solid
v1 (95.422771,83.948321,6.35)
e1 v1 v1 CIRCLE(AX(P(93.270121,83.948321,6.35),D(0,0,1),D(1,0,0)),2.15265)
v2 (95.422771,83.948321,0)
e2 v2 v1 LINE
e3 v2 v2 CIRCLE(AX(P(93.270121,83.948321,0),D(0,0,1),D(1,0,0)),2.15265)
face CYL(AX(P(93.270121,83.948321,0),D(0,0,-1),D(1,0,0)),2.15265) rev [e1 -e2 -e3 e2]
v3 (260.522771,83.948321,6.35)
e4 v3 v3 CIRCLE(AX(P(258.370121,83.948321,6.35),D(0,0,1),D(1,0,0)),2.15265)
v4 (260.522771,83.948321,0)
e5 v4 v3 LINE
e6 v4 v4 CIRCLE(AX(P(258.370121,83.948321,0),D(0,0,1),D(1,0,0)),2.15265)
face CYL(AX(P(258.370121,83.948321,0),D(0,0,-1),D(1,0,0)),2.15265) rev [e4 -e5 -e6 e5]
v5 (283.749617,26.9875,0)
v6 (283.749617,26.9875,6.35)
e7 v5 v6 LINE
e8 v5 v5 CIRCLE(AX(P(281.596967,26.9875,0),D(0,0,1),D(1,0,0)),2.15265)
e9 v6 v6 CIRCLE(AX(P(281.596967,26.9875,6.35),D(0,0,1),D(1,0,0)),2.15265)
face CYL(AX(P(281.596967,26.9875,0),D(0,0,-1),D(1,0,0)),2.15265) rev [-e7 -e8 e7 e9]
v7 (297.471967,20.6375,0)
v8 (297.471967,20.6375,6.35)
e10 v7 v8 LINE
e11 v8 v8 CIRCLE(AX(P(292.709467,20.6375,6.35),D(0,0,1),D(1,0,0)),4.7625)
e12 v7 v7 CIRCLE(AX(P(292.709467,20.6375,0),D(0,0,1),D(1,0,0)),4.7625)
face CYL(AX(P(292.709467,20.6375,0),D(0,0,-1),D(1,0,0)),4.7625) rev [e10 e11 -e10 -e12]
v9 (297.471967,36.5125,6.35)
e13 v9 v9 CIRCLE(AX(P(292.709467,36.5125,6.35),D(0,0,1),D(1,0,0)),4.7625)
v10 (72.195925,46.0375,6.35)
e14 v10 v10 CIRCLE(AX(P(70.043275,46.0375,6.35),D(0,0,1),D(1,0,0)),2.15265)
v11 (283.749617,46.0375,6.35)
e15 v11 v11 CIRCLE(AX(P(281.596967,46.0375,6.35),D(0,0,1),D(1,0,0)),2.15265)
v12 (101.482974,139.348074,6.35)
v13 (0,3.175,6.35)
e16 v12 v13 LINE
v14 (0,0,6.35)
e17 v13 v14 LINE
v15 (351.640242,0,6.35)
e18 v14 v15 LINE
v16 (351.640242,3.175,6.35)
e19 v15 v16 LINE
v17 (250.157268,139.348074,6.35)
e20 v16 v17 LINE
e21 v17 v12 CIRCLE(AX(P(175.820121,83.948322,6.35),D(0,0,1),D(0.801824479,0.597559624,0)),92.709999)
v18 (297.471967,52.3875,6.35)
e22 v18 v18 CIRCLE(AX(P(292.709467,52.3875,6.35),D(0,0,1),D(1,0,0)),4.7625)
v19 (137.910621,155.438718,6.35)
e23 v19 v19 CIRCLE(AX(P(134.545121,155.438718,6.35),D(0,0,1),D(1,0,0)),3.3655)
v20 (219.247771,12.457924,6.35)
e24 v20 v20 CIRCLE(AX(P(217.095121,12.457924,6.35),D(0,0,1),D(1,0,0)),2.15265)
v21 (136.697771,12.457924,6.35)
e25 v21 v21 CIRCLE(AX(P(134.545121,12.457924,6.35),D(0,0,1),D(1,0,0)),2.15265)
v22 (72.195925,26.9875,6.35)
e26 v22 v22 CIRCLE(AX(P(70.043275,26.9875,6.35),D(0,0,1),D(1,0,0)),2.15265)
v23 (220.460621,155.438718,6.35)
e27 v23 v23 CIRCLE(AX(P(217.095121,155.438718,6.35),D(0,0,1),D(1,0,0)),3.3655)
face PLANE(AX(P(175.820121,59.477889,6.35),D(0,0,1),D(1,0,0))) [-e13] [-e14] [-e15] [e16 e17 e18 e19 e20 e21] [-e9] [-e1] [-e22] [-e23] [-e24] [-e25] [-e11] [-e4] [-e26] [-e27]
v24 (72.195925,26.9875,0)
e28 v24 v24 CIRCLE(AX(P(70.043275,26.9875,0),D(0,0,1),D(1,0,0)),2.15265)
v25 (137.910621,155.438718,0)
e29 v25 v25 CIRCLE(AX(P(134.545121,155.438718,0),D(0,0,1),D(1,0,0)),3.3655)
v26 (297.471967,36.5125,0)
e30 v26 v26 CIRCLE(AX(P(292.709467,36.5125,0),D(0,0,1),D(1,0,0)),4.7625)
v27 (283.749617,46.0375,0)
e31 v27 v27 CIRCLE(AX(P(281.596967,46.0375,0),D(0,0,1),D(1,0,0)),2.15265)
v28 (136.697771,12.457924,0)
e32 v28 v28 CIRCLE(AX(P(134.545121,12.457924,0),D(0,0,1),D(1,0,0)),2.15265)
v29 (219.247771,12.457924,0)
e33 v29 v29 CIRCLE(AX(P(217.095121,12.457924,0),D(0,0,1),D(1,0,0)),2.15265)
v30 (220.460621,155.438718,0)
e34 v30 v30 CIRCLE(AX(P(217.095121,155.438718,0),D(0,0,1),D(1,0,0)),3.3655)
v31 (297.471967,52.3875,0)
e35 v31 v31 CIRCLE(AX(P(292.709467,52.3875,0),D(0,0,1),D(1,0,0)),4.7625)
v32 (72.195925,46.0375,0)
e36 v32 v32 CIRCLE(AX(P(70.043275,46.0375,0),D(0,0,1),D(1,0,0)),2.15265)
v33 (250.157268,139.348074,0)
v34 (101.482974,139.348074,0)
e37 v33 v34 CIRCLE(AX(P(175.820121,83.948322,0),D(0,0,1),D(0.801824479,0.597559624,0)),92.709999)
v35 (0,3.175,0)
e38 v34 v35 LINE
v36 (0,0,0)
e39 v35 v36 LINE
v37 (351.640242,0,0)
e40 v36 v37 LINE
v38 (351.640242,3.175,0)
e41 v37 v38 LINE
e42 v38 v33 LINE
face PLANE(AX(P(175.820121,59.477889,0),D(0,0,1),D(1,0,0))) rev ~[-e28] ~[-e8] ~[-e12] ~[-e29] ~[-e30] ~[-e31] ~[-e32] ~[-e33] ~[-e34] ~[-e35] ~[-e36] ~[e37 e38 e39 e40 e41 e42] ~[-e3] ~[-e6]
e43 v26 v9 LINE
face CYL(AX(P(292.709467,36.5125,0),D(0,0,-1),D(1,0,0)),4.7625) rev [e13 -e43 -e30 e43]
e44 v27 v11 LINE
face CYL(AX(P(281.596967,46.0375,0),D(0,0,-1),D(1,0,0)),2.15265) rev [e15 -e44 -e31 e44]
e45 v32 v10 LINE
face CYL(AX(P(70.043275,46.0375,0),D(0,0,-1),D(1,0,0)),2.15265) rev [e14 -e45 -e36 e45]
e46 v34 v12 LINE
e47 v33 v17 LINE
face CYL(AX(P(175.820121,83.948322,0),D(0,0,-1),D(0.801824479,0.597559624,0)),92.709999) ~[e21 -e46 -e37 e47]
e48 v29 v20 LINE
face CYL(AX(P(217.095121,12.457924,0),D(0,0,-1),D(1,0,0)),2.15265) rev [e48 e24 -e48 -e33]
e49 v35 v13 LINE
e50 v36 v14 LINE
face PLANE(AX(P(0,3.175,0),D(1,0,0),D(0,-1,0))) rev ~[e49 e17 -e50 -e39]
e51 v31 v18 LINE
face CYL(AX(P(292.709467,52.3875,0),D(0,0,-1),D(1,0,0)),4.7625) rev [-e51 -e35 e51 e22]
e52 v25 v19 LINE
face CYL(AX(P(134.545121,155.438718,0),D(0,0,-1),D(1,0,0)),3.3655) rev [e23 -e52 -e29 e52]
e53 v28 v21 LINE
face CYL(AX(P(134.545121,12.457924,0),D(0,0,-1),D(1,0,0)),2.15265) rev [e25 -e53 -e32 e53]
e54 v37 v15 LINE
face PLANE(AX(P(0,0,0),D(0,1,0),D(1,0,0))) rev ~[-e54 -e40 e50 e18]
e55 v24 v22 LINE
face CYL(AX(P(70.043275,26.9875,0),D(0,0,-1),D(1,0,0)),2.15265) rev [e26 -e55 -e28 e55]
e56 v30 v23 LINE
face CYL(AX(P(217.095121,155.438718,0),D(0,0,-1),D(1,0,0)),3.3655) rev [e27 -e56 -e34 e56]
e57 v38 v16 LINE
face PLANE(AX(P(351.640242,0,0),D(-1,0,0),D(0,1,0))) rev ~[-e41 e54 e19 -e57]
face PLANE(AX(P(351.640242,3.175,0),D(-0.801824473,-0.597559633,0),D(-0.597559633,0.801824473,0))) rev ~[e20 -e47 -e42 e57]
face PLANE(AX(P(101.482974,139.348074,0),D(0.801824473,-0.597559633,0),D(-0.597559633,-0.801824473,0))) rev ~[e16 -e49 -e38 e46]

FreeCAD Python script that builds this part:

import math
import FreeCAD as App
import Part
import Sketcher
Q = App.Units.Quantity

doc = App.newDocument("Part")
body = doc.addObject("PartDesign::Body", "Body")

# Sketch on XY plane
sketch1 = body.newObject("Sketcher::SketchObject", "Sketch")
sketch1.AttachmentSupport = (doc.getObject("XY_Plane"), [""])
sketch1.MapMode = "FlatFace"
sketch1.addGeometry(Part.LineSegment(App.Vector(0, 3.2, 0), App.Vector(0, 0, 0)), False)
sketch1.addGeometry(Part.LineSegment(App.Vector(0, 0, 0), App.Vector(351.6, 0, 0)), False)
sketch1.addGeometry(Part.LineSegment(App.Vector(351.6, 0, 0), App.Vector(351.6, 3.2, 0)), False)
sketch1.addGeometry(Part.LineSegment(App.Vector(351.6, 3.2, 0), App.Vector(250.2, 139.3, 0)), False)
sketch1.addGeometry(Part.ArcOfCircle(Part.Circle(App.Vector(175.8, 83.9, 0), App.Vector(0, 0, 1), 92.7), math.radians(37), math.radians(143)), False)
sketch1.addGeometry(Part.LineSegment(App.Vector(101.5, 139.3, 0), App.Vector(0, 3.2, 0)), False)
sketch1.addGeometry(Part.Circle(App.Vector(70, 27, 0), App.Vector(0, 0, 1), 2.2), False)
sketch1.addGeometry(Part.Circle(App.Vector(70, 46, 0), App.Vector(0, 0, 1), 2.2), False)
sketch1.addGeometry(Part.Circle(App.Vector(134.5, 12.5, 0), App.Vector(0, 0, 1), 2.2), False)
sketch1.addGeometry(Part.Circle(App.Vector(93.3, 83.9, 0), App.Vector(0, 0, 1), 2.2), False)
sketch1.addGeometry(Part.Circle(App.Vector(217.1, 12.5, 0), App.Vector(0, 0, 1), 2.2), False)
sketch1.addGeometry(Part.Circle(App.Vector(281.6, 27, 0), App.Vector(0, 0, 1), 2.2), False)
sketch1.addGeometry(Part.Circle(App.Vector(292.7, 20.6, 0), App.Vector(0, 0, 1), 4.8), False)
sketch1.addGeometry(Part.Circle(App.Vector(292.7, 36.5, 0), App.Vector(0, 0, 1), 4.8), False)
sketch1.addGeometry(Part.Circle(App.Vector(281.6, 46, 0), App.Vector(0, 0, 1), 2.2), False)
sketch1.addGeometry(Part.Circle(App.Vector(292.7, 52.4, 0), App.Vector(0, 0, 1), 4.8), False)
sketch1.addGeometry(Part.Circle(App.Vector(258.4, 83.9, 0), App.Vector(0, 0, 1), 2.2), False)
sketch1.addGeometry(Part.Circle(App.Vector(134.5, 155.4, 0), App.Vector(0, 0, 1), 3.4), False)
sketch1.addGeometry(Part.Circle(App.Vector(217.1, 155.4, 0), App.Vector(0, 0, 1), 3.4), False)
sketch1.addConstraint(Sketcher.Constraint("Coincident", 0, 2, 1, 1))
sketch1.addConstraint(Sketcher.Constraint("Coincident", 1, 2, 2, 1))
sketch1.addConstraint(Sketcher.Constraint("Coincident", 2, 2, 3, 1))
sketch1.addConstraint(Sketcher.Constraint("Tangent", 3, 2, 4, 1))
sketch1.addConstraint(Sketcher.Constraint("Tangent", 4, 2, 5, 1))
sketch1.addConstraint(Sketcher.Constraint("Coincident", 5, 2, 0, 1))
sketch1.addConstraint(Sketcher.Constraint("Vertical", 0))
sketch1.addConstraint(Sketcher.Constraint("Horizontal", 1))
sketch1.addConstraint(Sketcher.Constraint("Vertical", 2))
sketch1.addConstraint(Sketcher.Constraint("Coincident", 0, 2, -1, 1))
sketch1.addConstraint(Sketcher.Constraint("Equal", 6, 7))
sketch1.addConstraint(Sketcher.Constraint("Equal", 7, 8))
sketch1.addConstraint(Sketcher.Constraint("Equal", 8, 9))
sketch1.addConstraint(Sketcher.Constraint("Equal", 9, 10))
sketch1.addConstraint(Sketcher.Constraint("Equal", 10, 11))
sketch1.addConstraint(Sketcher.Constraint("Equal", 12, 13))
sketch1.addConstraint(Sketcher.Constraint("Equal", 11, 14))
sketch1.addConstraint(Sketcher.Constraint("Equal", 13, 15))
sketch1.addConstraint(Sketcher.Constraint("Equal", 14, 16))
sketch1.addConstraint(Sketcher.Constraint("Equal", 17, 18))
sketch1.addConstraint(Sketcher.Constraint("Horizontal", 4, 3, 9, 3))
sketch1.addConstraint(Sketcher.Constraint("Horizontal", 8, 3, 10, 3))
sketch1.addConstraint(Sketcher.Constraint("Horizontal", 6, 3, 11, 3))
sketch1.addConstraint(Sketcher.Constraint("Horizontal", 7, 3, 14, 3))
sketch1.addConstraint(Sketcher.Constraint("Horizontal", 9, 3, 16, 3))
sketch1.addConstraint(Sketcher.Constraint("Horizontal", 17, 3, 18, 3))
sketch1.addConstraint(Sketcher.Constraint("Horizontal", 3, 2, 4, 2))
sketch1.addConstraint(Sketcher.Constraint("Horizontal", 2, 2, 5, 2))
sketch1.addConstraint(Sketcher.Constraint("Vertical", 6, 3, 7, 3))
sketch1.addConstraint(Sketcher.Constraint("Vertical", 12, 3, 13, 3))
sketch1.addConstraint(Sketcher.Constraint("Vertical", 11, 3, 14, 3))
sketch1.addConstraint(Sketcher.Constraint("Vertical", 13, 3, 15, 3))
sketch1.addConstraint(Sketcher.Constraint("Vertical", 8, 3, 17, 3))
sketch1.addConstraint(Sketcher.Constraint("Vertical", 10, 3, 18, 3))
sketch1.addConstraint(Sketcher.Constraint("Radius", 4, Q("3.65 in")))
sketch1.addConstraint(Sketcher.Constraint("Diameter", 12, Q("0.375 in")))
sketch1.addConstraint(Sketcher.Constraint("Diameter", 17, Q("0.265 in")))
sketch1.addConstraint(Sketcher.Constraint("DistanceY", 12, 3, 14, 3, Q("1 in")))
sketch1.addConstraint(Sketcher.Constraint("DistanceY", 11, 3, 15, 3, Q("1 in")))
sketch1.addConstraint(Sketcher.Constraint("Diameter", 6, Q("0.1695 in")))
sketch1.addConstraint(Sketcher.Constraint("DistanceY", 0, 2, 0, 1, Q("0.125 in")))
sketch1.addConstraint(Sketcher.Constraint("DistanceY", 6, 3, 7, 3, Q("0.75 in")))
sketch1.addConstraint(Sketcher.Constraint("DistanceX", 9, 3, 4, 3, Q("3.25 in")))
sketch1.addConstraint(Sketcher.Constraint("DistanceX", 8, 3, 10, 3, Q("3.25 in")))
sketch1.addConstraint(Sketcher.Constraint("DistanceY", -1, 1, 6, 3, Q("1.0625 in")))
sketch1.addConstraint(Sketcher.Constraint("DistanceY", -1, 1, 13, 3, Q("1.4375 in")))
sketch1.addConstraint(Sketcher.Constraint("DistanceX", 8, 3, 4, 3, Q("1.625 in")))
sketch1.addConstraint(Sketcher.Constraint("DistanceX", 11, 3, 12, 3, Q("0.4375 in")))
sketch1.addConstraint(Sketcher.Constraint("DistanceX", 17, 3, 16, 3, Q("4.875 in")))
sketch1.addConstraint(Sketcher.Constraint("DistanceX", 1, 1, 1, 2, 351.640242))
sketch1.addConstraint(Sketcher.Constraint("DistanceX", 3, 2, 15, 3, 42.552199))
sketch1.addConstraint(Sketcher.Constraint("DistanceX", 7, 3, 4, 2, 31.439699))
sketch1.addConstraint(Sketcher.Constraint("Distance", 3, 169.829032))
sketch1.addConstraint(Sketcher.Constraint("DistanceY", -1, 1, 17, 3, 155.438718))
sketch1.addConstraint(Sketcher.Constraint("DistanceY", -1, 1, 8, 3, 12.457924))
pad1 = body.newObject("PartDesign::Pad", "Pad")
pad1.Profile = sketch1
pad1.Length = Q("0.25 in")

doc.recompute()
